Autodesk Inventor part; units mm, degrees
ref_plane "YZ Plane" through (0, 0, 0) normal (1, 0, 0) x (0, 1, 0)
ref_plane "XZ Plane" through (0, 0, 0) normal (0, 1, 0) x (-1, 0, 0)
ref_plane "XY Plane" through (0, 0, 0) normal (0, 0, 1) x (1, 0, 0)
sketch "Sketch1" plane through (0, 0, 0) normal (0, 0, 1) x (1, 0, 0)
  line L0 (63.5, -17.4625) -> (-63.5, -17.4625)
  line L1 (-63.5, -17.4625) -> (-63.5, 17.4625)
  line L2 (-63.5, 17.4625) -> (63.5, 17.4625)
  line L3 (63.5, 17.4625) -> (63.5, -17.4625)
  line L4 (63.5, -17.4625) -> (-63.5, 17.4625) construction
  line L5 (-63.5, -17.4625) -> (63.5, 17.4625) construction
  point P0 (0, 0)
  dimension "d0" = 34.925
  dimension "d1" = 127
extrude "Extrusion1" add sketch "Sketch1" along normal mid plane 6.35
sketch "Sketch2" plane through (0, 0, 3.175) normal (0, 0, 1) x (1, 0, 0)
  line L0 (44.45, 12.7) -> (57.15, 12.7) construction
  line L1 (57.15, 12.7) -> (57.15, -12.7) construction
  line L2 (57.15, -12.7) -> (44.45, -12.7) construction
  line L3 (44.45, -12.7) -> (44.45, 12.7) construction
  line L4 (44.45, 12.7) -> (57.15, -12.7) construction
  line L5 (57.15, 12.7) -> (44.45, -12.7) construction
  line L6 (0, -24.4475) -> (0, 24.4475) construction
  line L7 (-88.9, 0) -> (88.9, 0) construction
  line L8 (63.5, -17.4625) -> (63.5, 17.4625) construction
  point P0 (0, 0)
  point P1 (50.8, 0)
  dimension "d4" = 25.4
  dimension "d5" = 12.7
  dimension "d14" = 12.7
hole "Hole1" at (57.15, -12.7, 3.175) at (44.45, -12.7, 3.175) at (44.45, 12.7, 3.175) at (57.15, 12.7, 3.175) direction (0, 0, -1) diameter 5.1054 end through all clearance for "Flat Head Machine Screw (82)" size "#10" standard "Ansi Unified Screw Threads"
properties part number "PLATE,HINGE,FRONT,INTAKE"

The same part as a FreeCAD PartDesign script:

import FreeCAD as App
import Part
import Sketcher
Q = App.Units.Quantity

doc = App.newDocument("Part")
body = doc.addObject("PartDesign::Body", "Body")

# Sketch on XY plane
sketch1 = doc.addObject("Sketcher::SketchObject", "Sketch")
body.addObject(sketch1)
sketch1.AttachmentSupport = (doc.XY_Plane, [""])
sketch1.MapMode = "FlatFace"
sketch1.addGeometry(Part.LineSegment(App.Vector(-63.5, -17.4625, 0), App.Vector(63.5, -17.4625, 0)), False)
sketch1.addGeometry(Part.LineSegment(App.Vector(63.5, -17.4625, 0), App.Vector(63.5, 17.4625, 0)), False)
sketch1.addGeometry(Part.LineSegment(App.Vector(63.5, 17.4625, 0), App.Vector(-63.5, 17.4625, 0)), False)
sketch1.addGeometry(Part.LineSegment(App.Vector(-63.5, 17.4625, 0), App.Vector(-63.5, -17.4625, 0)), False)
sketch1.addConstraint(Sketcher.Constraint("Coincident", 0, 2, 1, 1))
sketch1.addConstraint(Sketcher.Constraint("Coincident", 1, 2, 2, 1))
sketch1.addConstraint(Sketcher.Constraint("Coincident", 2, 2, 3, 1))
sketch1.addConstraint(Sketcher.Constraint("Coincident", 3, 2, 0, 1))
sketch1.addConstraint(Sketcher.Constraint("Horizontal", 0))
sketch1.addConstraint(Sketcher.Constraint("Vertical", 1))
sketch1.addConstraint(Sketcher.Constraint("Horizontal", 2))
sketch1.addConstraint(Sketcher.Constraint("Vertical", 3))
sketch1.addConstraint(Sketcher.Constraint("Symmetric", 0, 2, 2, 2, -1, 1))
sketch1.addConstraint(Sketcher.Constraint("DistanceX", 0, 1, 0, 2, Q("5 in")))
sketch1.addConstraint(Sketcher.Constraint("DistanceY", 1, 1, 1, 2, Q("1.375 in")))
pad1 = doc.addObject("PartDesign::Pad", "Pad")
body.addObject(pad1)
pad1.Profile = sketch1
pad1.Length = Q("0.25 in")
pad1.Midplane = True

# Sketch on XY plane
sketch2 = doc.addObject("Sketcher::SketchObject", "Sketch001")
body.addObject(sketch2)
sketch2.AttachmentSupport = (doc.XY_Plane, [""])
sketch2.MapMode = "FlatFace"
sketch2.AttachmentOffset = App.Placement(App.Vector(0, 0, 0.125 * 25.4), App.Rotation())
sketch2.addGeometry(Part.Circle(App.Vector(57.15, -12.7, 0), App.Vector(0, 0, 1), 2.5527), False)
sketch2.addGeometry(Part.Circle(App.Vector(44.45, -12.7, 0), App.Vector(0, 0, 1), 2.5527), False)
sketch2.addGeometry(Part.Circle(App.Vector(44.45, 12.7, 0), App.Vector(0, 0, 1), 2.5527), False)
sketch2.addGeometry(Part.Circle(App.Vector(57.15, 12.7, 0), App.Vector(0, 0, 1), 2.5527), False)
sketch2.addConstraint(Sketcher.Constraint("Equal", 0, 1))
sketch2.addConstraint(Sketcher.Constraint("Equal", 1, 2))
sketch2.addConstraint(Sketcher.Constraint("Equal", 2, 3))
sketch2.addConstraint(Sketcher.Constraint("Symmetric", 1, 3, 2, 3, -1))
sketch2.addConstraint(Sketcher.Constraint("Symmetric", 0, 3, 3, 3, -1))
sketch2.addConstraint(Sketcher.Constraint("Horizontal", 0, 3, 1, 3))
sketch2.addConstraint(Sketcher.Constraint("Diameter", 0, Q("0.201 in")))
sketch2.addConstraint(Sketcher.Constraint("DistanceY", 1, 3, 2, 3, Q("1 in")))
sketch2.addConstraint(Sketcher.Constraint("DistanceX", 1, 3, 0, 3, Q("0.5 in")))
sketch2.addConstraint(Sketcher.Constraint("DistanceX", -1, 1, 0, 3, Q("2.25 in")))
doc.recompute()
hole = doc.addObject("PartDesign::Hole", "Hole")
body.addObject(hole)
hole.Profile = sketch2
hole.ThreadType = "None"
hole.Diameter = Q("0.201 in")
hole.DepthType = "ThroughAll"

doc.recompute()
